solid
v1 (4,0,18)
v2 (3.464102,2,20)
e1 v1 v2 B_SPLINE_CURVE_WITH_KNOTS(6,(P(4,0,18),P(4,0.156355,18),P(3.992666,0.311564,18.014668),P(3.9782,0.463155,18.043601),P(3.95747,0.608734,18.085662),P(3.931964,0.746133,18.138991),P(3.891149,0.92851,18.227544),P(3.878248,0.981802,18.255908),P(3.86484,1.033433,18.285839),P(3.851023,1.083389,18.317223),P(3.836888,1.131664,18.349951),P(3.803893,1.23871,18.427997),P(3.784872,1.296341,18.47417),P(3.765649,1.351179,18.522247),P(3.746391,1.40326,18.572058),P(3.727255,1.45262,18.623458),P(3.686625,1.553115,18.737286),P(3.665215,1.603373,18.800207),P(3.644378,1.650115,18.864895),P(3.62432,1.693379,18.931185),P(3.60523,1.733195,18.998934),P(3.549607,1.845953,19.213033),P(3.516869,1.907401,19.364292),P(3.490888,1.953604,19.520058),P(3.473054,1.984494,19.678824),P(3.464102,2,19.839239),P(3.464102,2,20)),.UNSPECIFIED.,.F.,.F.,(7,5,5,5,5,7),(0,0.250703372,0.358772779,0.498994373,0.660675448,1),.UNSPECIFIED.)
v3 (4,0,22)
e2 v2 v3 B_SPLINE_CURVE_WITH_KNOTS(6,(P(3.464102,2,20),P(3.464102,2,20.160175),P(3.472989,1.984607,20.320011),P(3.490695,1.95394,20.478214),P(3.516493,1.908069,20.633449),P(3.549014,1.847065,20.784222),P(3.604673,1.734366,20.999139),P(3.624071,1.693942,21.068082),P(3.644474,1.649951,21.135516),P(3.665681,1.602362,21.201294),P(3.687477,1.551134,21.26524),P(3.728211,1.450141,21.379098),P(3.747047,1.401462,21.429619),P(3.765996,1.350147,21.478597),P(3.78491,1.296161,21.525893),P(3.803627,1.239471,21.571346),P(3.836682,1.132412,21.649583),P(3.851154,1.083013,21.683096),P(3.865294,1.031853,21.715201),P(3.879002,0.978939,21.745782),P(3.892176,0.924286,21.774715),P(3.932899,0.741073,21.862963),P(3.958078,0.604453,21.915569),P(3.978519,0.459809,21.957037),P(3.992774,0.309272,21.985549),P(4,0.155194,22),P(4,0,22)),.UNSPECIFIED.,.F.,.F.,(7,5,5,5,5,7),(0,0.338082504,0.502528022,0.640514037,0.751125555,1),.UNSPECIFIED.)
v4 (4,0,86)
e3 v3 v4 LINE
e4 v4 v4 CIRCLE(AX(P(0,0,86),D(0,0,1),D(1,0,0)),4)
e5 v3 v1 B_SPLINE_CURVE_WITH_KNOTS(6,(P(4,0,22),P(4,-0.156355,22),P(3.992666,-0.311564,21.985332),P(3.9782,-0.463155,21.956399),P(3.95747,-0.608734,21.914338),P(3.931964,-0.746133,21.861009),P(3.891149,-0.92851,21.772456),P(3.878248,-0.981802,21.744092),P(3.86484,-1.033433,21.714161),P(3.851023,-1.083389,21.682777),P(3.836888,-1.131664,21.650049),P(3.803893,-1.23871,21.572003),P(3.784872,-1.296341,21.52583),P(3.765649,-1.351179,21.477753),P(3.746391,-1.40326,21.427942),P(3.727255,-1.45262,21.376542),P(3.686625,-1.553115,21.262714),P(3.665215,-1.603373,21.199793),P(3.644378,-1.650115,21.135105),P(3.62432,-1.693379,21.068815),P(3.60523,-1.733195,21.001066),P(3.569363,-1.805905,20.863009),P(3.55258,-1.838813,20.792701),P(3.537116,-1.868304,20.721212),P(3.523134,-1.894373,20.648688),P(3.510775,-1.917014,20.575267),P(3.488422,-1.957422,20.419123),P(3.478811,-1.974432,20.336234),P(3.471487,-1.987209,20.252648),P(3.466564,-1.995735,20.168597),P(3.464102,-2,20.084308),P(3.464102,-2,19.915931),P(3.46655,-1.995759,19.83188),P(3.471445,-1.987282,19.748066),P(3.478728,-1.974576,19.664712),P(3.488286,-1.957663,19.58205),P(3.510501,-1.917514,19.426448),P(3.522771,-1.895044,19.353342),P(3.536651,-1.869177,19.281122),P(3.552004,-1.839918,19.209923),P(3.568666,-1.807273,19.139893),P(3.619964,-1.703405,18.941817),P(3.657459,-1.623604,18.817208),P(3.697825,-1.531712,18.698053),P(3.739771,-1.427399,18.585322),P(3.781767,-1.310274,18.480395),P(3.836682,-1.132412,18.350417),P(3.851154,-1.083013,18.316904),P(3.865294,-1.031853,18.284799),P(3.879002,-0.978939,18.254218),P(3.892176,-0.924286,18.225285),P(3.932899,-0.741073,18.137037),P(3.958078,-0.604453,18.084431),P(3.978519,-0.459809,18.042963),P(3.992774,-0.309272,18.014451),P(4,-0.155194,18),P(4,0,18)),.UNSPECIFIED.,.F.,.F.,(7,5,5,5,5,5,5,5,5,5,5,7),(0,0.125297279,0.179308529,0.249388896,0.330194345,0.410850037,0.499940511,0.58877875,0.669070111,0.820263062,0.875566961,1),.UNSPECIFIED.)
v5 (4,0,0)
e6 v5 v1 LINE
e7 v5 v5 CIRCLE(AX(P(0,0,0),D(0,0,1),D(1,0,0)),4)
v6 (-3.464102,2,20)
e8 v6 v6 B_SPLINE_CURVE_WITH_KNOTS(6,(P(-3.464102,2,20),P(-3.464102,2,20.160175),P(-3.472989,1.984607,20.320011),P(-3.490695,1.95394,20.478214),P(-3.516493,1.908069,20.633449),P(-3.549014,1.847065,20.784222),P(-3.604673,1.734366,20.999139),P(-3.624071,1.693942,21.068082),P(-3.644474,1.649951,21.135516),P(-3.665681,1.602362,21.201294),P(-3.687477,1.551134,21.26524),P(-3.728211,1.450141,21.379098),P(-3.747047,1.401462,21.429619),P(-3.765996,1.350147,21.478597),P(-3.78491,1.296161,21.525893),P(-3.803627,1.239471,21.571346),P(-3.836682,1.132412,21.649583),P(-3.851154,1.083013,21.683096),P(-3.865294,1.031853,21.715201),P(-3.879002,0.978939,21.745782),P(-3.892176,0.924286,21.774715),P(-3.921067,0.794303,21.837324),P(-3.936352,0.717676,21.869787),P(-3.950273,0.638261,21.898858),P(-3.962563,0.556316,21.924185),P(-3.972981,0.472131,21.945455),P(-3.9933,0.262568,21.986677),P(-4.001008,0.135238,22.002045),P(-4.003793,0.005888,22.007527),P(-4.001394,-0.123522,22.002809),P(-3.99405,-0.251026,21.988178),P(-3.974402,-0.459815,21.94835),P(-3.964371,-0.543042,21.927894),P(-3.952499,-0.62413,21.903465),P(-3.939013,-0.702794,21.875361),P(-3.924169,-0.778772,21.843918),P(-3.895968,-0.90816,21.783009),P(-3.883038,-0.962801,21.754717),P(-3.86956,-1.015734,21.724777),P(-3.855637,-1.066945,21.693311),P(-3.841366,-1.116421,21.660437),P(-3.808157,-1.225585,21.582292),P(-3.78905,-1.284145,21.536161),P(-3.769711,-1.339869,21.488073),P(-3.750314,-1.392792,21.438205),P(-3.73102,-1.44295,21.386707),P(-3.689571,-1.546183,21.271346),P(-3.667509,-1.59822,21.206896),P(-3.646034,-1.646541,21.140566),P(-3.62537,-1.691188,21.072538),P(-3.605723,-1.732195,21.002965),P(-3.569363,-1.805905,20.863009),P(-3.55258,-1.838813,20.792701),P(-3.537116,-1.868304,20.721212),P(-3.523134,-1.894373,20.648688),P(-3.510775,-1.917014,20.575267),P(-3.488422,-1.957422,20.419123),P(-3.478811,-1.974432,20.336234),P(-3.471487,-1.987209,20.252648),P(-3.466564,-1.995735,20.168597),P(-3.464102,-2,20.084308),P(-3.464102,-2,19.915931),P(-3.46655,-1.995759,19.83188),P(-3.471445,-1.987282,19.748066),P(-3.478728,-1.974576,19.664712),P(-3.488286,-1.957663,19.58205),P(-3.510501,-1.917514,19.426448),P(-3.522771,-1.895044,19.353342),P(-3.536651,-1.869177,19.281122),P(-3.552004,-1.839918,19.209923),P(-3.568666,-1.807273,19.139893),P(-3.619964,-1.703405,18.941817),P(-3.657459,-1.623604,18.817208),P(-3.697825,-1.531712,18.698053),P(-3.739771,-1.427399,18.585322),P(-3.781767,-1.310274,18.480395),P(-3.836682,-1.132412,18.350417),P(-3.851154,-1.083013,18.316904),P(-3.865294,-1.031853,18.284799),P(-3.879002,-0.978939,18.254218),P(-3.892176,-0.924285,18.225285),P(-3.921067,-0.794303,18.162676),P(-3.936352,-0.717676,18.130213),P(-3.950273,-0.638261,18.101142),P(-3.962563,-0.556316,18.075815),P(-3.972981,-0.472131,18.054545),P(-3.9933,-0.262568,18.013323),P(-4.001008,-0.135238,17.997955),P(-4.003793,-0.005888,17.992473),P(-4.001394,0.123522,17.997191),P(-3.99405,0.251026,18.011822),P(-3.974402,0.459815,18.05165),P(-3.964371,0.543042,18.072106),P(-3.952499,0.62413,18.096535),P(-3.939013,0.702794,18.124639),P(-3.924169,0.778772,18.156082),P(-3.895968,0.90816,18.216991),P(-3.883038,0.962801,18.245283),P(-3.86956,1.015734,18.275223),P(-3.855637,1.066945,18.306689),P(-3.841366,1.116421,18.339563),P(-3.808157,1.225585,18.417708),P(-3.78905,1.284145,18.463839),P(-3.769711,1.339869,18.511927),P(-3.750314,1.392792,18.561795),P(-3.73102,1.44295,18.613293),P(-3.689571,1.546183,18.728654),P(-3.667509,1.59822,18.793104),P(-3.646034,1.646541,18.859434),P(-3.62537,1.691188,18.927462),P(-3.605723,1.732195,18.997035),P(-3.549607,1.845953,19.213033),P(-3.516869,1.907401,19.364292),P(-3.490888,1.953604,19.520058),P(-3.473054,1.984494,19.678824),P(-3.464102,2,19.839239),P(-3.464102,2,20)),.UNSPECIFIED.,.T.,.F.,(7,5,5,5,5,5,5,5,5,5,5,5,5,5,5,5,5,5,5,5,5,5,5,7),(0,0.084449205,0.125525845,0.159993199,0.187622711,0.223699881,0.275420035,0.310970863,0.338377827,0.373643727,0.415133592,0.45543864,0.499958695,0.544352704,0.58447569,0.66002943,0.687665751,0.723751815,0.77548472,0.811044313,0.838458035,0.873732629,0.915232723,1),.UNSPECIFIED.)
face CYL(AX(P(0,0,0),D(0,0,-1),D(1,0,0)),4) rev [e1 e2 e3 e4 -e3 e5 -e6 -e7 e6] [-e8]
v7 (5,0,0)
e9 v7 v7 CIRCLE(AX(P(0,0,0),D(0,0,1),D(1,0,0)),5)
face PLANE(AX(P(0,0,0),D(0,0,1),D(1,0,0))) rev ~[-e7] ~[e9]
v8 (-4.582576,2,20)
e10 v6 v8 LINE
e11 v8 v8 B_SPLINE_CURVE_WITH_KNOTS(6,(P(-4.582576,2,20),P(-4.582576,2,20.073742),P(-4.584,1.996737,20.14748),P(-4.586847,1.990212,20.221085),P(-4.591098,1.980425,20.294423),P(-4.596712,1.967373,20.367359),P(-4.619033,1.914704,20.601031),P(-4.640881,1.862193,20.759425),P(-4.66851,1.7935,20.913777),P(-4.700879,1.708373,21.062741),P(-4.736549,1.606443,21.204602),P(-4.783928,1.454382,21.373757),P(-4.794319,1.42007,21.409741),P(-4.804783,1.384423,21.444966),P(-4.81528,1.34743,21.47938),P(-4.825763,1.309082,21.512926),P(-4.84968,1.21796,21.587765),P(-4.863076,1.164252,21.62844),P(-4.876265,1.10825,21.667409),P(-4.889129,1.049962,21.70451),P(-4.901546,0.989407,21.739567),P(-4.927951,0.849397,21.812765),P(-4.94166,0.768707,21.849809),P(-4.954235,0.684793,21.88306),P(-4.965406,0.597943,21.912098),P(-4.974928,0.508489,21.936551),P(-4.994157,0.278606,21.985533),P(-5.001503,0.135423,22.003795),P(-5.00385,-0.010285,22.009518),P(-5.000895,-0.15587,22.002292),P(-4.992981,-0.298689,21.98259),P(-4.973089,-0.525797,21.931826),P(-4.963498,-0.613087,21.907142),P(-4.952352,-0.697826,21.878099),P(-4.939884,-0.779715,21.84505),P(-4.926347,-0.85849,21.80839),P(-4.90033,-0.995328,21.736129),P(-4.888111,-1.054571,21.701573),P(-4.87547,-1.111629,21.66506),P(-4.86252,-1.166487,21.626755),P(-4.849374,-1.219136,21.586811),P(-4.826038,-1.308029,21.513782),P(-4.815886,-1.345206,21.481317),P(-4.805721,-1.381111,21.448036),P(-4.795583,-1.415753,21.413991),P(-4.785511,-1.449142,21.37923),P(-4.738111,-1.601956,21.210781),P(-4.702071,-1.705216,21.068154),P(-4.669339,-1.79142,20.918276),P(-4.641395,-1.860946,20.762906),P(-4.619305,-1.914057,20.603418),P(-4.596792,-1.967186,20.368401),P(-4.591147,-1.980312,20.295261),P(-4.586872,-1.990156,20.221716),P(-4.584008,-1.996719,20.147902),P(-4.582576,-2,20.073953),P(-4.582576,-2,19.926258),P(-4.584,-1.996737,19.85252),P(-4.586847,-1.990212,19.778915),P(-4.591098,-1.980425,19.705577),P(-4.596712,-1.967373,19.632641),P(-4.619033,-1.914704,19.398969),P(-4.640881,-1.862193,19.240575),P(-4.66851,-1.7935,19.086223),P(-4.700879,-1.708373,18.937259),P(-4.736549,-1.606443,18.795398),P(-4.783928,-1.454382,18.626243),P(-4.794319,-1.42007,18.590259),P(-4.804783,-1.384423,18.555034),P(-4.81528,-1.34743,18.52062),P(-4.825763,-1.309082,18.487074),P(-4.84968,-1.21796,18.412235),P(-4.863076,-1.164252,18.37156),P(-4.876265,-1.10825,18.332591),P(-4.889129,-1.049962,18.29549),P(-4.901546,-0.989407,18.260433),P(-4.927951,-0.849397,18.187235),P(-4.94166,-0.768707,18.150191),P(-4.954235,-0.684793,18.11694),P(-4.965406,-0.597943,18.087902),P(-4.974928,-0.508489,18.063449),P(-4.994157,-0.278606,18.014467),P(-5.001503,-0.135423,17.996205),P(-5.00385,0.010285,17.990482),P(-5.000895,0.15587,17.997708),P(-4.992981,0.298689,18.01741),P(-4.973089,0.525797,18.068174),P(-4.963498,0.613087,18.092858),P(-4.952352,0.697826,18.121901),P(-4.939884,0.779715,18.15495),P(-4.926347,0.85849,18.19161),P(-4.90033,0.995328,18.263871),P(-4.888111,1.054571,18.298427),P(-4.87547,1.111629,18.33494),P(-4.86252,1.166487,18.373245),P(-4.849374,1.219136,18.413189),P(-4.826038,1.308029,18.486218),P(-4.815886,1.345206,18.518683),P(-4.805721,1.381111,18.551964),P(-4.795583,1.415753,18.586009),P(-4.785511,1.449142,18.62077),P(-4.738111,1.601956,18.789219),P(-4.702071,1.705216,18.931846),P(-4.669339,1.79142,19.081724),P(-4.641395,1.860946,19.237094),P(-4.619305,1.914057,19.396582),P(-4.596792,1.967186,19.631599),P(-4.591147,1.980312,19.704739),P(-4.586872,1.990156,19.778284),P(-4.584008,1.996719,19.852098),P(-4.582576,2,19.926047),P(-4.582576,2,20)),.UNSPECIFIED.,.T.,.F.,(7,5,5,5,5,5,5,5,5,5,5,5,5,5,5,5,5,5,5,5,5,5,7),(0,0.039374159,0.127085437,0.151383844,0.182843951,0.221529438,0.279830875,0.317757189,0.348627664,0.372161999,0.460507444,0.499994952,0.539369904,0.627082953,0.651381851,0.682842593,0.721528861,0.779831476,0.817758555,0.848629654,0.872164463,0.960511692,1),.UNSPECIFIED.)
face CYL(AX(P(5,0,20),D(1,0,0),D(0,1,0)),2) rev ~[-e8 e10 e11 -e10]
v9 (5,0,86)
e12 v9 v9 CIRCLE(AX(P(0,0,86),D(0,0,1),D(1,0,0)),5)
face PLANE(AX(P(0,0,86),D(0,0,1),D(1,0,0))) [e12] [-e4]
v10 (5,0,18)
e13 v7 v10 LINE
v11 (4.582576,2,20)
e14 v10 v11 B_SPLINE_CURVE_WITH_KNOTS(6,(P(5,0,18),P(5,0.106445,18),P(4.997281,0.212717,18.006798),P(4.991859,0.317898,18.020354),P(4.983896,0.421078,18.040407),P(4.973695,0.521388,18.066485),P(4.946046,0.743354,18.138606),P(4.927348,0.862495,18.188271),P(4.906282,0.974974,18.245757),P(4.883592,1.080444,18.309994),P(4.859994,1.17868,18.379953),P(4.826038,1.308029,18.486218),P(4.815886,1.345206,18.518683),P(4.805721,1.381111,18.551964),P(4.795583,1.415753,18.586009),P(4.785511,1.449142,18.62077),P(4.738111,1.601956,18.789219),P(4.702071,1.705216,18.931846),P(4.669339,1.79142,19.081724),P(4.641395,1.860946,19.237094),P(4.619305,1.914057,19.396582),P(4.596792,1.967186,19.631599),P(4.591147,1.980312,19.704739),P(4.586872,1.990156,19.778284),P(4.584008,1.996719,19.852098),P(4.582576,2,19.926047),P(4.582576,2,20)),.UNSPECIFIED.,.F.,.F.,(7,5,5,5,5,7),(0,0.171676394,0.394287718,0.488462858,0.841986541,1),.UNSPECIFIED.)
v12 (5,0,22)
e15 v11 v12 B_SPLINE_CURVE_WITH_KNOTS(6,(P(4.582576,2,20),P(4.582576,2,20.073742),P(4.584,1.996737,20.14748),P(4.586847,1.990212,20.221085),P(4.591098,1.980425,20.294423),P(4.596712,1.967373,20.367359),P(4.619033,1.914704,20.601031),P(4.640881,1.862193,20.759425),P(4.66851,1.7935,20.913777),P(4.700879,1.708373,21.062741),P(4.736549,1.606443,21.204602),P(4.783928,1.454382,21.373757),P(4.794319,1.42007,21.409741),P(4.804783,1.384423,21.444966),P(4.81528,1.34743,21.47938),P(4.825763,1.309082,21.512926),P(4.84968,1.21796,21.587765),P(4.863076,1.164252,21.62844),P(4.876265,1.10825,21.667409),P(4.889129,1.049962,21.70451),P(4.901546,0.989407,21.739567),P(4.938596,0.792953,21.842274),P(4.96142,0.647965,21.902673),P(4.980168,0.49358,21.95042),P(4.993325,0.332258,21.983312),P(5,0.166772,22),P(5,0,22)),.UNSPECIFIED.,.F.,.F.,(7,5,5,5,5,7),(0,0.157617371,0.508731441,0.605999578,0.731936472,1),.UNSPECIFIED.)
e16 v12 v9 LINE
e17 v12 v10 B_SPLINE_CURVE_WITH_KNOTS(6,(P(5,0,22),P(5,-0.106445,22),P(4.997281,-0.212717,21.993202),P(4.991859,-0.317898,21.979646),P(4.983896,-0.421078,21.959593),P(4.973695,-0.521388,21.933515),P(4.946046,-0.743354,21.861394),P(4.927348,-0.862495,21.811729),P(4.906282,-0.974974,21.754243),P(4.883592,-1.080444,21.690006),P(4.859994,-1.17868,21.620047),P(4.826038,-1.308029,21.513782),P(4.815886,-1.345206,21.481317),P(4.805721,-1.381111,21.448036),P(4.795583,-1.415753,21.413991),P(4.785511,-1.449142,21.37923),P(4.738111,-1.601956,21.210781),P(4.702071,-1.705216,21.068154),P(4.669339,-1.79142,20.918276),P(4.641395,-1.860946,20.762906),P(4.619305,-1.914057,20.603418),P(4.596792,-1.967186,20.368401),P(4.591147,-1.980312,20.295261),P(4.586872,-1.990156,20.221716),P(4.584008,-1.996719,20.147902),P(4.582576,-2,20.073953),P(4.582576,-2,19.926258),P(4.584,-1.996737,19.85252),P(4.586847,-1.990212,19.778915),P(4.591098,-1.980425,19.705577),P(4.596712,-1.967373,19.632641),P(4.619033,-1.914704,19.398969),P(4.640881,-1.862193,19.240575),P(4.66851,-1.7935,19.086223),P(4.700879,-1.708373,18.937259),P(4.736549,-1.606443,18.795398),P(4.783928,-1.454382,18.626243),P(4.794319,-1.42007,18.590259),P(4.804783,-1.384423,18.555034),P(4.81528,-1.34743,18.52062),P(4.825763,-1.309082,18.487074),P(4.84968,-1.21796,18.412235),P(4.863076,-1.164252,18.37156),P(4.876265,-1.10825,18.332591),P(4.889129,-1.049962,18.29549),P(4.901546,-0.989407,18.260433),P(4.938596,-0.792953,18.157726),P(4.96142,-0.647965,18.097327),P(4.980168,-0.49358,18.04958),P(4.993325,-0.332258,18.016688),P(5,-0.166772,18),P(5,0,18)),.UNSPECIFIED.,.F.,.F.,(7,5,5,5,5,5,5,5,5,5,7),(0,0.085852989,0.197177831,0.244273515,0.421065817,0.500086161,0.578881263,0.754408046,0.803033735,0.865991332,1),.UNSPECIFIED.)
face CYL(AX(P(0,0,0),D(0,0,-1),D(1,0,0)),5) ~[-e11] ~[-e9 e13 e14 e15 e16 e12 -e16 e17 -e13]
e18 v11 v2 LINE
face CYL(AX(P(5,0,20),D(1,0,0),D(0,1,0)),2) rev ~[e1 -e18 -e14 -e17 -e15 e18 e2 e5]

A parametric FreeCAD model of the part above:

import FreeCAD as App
import Part
import Sketcher
from FreeCAD import Vector
Q = App.Units.Quantity

doc = App.newDocument("Part")
body = doc.addObject("PartDesign::Body", "Body")

sketch1 = body.newObject("Sketcher::SketchObject", "Sketch")
sketch1.AttachmentSupport = (doc.getObject("XY_Plane"), [""])
sketch1.MapMode = "FlatFace"
sketch1.addGeometry([
    Part.Circle(Vector(0, 0, 0), Vector(0, 0, 1), 5),
    Part.Circle(Vector(0, 0, 0), Vector(0, 0, 1), 4),
], False)
sketch1.addConstraint([
    Sketcher.Constraint("Coincident", 0, 3, -1, 1),
    Sketcher.Constraint("Coincident", 1, 3, -1, 1),
    Sketcher.Constraint("Diameter", 0, Q("10 mm")),
    Sketcher.Constraint("Diameter", 1, Q("8 mm")),
])
pad1 = body.newObject("PartDesign::Pad", "Pad")
pad1.Profile = sketch1
pad1.Length = 86

sketch2 = body.newObject("Sketcher::SketchObject", "Sketch001")
sketch2.AttachmentSupport = (doc.getObject("YZ_Plane"), [""])
sketch2.MapMode = "FlatFace"
sketch2.AttachmentOffset = App.Placement(Vector(0, 0, 5), App.Rotation())
sketch2.addGeometry(Part.Circle(Vector(0, 20, 0), Vector(0, 0, 1), 2), False)
sketch2.addConstraint([
    Sketcher.Constraint("PointOnObject", 0, 3, -2),
    Sketcher.Constraint("Diameter", 0, Q("4 mm")),
    Sketcher.Constraint("DistanceY", -1, 1, 0, 3, Q("20 mm")),
])
pocket1 = body.newObject("PartDesign::Pocket", "Pocket")
pocket1.Profile = sketch2
pocket1.Length = 10

doc.recompute()
